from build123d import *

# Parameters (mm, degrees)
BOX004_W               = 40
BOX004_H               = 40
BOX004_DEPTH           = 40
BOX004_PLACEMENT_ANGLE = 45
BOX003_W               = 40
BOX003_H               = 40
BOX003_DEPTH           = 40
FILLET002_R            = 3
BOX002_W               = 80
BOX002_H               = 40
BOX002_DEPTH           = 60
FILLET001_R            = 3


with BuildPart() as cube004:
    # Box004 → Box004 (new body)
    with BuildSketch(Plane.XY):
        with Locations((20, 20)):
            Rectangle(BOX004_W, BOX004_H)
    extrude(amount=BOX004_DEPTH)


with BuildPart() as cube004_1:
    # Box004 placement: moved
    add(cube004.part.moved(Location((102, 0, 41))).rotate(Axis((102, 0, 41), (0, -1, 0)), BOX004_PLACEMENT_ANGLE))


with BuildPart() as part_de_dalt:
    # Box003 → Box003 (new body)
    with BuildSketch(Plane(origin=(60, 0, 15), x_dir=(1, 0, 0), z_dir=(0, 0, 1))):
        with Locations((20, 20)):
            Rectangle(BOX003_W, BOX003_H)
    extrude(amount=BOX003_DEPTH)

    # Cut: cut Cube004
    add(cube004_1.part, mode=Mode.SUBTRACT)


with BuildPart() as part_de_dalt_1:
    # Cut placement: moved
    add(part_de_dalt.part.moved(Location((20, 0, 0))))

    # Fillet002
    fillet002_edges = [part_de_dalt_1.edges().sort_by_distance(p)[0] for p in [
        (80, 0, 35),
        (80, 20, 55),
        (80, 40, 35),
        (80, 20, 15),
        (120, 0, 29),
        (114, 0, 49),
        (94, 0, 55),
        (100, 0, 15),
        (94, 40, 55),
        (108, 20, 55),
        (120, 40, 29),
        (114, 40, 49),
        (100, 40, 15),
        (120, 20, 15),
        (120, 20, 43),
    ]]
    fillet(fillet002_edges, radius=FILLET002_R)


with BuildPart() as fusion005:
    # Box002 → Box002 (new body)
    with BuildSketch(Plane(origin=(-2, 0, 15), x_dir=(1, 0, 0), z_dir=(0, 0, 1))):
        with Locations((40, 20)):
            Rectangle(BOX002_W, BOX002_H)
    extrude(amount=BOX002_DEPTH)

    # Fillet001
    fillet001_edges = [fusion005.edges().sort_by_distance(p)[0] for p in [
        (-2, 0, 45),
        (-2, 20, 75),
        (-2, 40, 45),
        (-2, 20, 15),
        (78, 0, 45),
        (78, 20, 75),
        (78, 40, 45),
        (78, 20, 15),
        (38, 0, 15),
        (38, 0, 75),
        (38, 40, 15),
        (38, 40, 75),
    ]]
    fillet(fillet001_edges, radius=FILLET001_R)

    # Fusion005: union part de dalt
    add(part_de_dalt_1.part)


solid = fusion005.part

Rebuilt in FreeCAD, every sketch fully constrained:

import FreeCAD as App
import Part
import Sketcher
Q = App.Units.Quantity


def add_polygon(sketch, points):
    """Adds a closed chain of lines whose ends are joined by coincident constraints."""
    first, n = sketch.GeometryCount, len(points)
    for a, b in zip(points, points[1:] + points[:1]):
        sketch.addGeometry(Part.LineSegment(App.Vector(*a, 0), App.Vector(*b, 0)), False)
    for i in range(n):
        sketch.addConstraint(Sketcher.Constraint("Coincident", first + i, 2, first + (i + 1) % n, 1))

doc = App.newDocument("Part")
body = doc.addObject("PartDesign::Body", "Body")

# Sketch on XY plane
sketch1 = body.newObject("Sketcher::SketchObject", "Sketch")
sketch1.AttachmentSupport = (doc.getObject("XY_Plane"), [""])
sketch1.MapMode = "FlatFace"
add_polygon(sketch1, [(0, 40), (0, 0), (40, 0), (40, 40)])  # lines 0-3
sketch1.addConstraint([
    Sketcher.Constraint("Vertical", 0),
    Sketcher.Constraint("Horizontal", 1),
    Sketcher.Constraint("Vertical", 2),
    Sketcher.Constraint("Horizontal", 3),
    Sketcher.Constraint("Coincident", 0, 2, -1, 1),
    Sketcher.Constraint("Equal", 3, 0),
    Sketcher.Constraint("DistanceX", 1, 1, 1, 2, Q("40 mm")),
])
pad1 = body.newObject("PartDesign::Pad", "Pad")
pad1.Profile = sketch1
pad1.Length = 40
body2 = doc.addObject("PartDesign::Body", "Body001")
doc.recompute()

body.Placement = App.Placement(App.Vector(102, 0, 41), App.Rotation(App.Vector(0, -1, 0), 45))
boolean = body2.newObject("PartDesign::Boolean", "Boolean")
boolean.Type = "Fuse"
boolean.addObjects([body])
body3 = doc.addObject("PartDesign::Body", "Body002")

# Sketch on XY plane
sketch2 = body3.newObject("Sketcher::SketchObject", "Sketch001")
sketch2.AttachmentSupport = (doc.getObject("XY_Plane002"), [""])
sketch2.MapMode = "FlatFace"
sketch2.AttachmentOffset = App.Placement(App.Vector(0, 0, 15), App.Rotation())
add_polygon(sketch2, [(60, 40), (60, 0), (100, 0), (100, 40)])  # lines 0-3
sketch2.addConstraint([
    Sketcher.Constraint("Vertical", 0),
    Sketcher.Constraint("Horizontal", 1),
    Sketcher.Constraint("Vertical", 2),
    Sketcher.Constraint("Horizontal", 3),
    Sketcher.Constraint("PointOnObject", 0, 2, -1),
    Sketcher.Constraint("Equal", 3, 0),
    Sketcher.Constraint("DistanceX", 1, 1, 1, 2, Q("40 mm")),
    Sketcher.Constraint("DistanceX", -1, 1, 0, 2, Q("60 mm")),
])
pad2 = body3.newObject("PartDesign::Pad", "Pad001")
pad2.Profile = sketch2
pad2.Length = 40
doc.recompute()

boolean2 = body3.newObject("PartDesign::Boolean", "Boolean001")
boolean2.Type = "Cut"
boolean2.addObjects([body2])
body4 = doc.addObject("PartDesign::Body", "Body003")
doc.recompute()

body3.Placement = App.Placement(App.Vector(20, 0, 0), App.Rotation(App.Vector(0, 0, 1), 0))
boolean3 = body4.newObject("PartDesign::Boolean", "Boolean002")
boolean3.Type = "Fuse"
boolean3.addObjects([body3])
doc.recompute()

fillet = body4.newObject("PartDesign::Fillet", "Fillet")
fillet.Base = (boolean3, ["Edge1"])
fillet.UseAllEdges = True
fillet.Radius = 3
body5 = doc.addObject("PartDesign::Body", "Body004")
body5.AllowCompound = True

# Sketch on XY plane
sketch3 = body5.newObject("Sketcher::SketchObject", "Sketch002")
sketch3.AttachmentSupport = (doc.getObject("XY_Plane004"), [""])
sketch3.MapMode = "FlatFace"
sketch3.AttachmentOffset = App.Placement(App.Vector(0, 0, 15), App.Rotation())
add_polygon(sketch3, [(-2, 40), (-2, 0), (78, 0), (78, 40)])  # lines 0-3
sketch3.addConstraint([
    Sketcher.Constraint("Vertical", 0),
    Sketcher.Constraint("Horizontal", 1),
    Sketcher.Constraint("Vertical", 2),
    Sketcher.Constraint("Horizontal", 3),
    Sketcher.Constraint("PointOnObject", 0, 2, -1),
    Sketcher.Constraint("DistanceX", 1, 1, 1, 2, Q("80 mm")),
    Sketcher.Constraint("DistanceY", 0, 2, 0, 1, Q("40 mm")),
    Sketcher.Constraint("DistanceX", 0, 2, -1, 1, Q("2 mm")),
])
pad3 = body5.newObject("PartDesign::Pad", "Pad002")
pad3.Profile = sketch3
pad3.Length = 60
doc.recompute()

fillet2 = body5.newObject("PartDesign::Fillet", "Fillet001")
fillet2.Base = (pad3, ["Edge1"])
fillet2.UseAllEdges = True
fillet2.Radius = 3
doc.recompute()

boolean4 = body5.newObject("PartDesign::Boolean", "Boolean003")
boolean4.Type = "Fuse"
boolean4.addObjects([body4])

doc.recompute()
